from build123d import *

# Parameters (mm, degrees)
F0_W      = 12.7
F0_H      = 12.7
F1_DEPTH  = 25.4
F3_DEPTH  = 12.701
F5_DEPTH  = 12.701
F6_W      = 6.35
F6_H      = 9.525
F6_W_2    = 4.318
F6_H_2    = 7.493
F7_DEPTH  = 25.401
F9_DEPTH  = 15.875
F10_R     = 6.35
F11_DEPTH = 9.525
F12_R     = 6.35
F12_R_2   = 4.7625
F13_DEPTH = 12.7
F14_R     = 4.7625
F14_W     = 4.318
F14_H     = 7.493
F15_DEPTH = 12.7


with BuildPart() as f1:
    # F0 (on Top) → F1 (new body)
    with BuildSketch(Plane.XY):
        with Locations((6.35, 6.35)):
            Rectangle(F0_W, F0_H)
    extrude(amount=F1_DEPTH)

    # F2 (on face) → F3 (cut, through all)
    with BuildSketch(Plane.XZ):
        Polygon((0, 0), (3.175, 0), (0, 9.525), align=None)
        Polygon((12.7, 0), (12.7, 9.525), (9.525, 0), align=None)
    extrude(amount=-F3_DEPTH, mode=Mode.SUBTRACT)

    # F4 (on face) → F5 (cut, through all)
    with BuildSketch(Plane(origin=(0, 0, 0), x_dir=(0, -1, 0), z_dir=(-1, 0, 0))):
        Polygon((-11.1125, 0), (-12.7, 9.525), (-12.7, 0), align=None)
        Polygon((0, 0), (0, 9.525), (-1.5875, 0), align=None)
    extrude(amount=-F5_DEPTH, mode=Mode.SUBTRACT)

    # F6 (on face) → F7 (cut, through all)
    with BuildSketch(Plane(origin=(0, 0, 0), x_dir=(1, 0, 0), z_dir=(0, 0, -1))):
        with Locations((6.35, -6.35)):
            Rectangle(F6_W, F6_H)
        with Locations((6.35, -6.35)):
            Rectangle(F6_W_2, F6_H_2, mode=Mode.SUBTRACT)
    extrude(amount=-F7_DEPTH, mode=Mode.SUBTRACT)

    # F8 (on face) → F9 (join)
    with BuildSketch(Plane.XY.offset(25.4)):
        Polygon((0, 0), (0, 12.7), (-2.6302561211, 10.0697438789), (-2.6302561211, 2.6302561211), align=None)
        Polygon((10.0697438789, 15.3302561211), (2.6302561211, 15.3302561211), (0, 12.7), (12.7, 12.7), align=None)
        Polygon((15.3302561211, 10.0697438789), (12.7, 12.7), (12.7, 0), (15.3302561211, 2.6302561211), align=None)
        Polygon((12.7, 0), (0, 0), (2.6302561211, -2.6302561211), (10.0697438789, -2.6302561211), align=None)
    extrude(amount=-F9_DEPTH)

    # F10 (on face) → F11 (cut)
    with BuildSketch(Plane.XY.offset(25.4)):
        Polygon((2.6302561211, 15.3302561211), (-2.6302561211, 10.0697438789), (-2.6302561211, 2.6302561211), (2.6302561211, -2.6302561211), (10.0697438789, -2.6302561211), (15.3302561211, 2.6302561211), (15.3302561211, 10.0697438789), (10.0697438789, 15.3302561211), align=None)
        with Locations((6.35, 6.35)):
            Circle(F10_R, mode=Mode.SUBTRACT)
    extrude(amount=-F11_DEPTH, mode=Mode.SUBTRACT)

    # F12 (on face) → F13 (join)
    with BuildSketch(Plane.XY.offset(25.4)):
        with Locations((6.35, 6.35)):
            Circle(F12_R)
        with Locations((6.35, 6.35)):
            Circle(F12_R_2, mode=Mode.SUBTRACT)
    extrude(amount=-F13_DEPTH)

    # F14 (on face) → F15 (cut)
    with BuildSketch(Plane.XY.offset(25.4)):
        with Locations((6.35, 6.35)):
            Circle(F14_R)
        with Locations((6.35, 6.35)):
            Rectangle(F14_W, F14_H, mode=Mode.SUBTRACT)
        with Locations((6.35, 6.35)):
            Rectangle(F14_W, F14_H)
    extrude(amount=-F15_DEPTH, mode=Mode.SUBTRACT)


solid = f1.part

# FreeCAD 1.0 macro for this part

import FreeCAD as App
import Part
import Sketcher

V = App.Vector
Q = App.Units.Quantity


def add_polygon(sketch, points):
    """Adds a closed chain of lines whose ends are joined by coincident constraints."""
    first, n = sketch.GeometryCount, len(points)
    for a, b in zip(points, points[1:] + points[:1]):
        sketch.addGeometry(Part.LineSegment(App.Vector(*a, 0), App.Vector(*b, 0)), False)
    for i in range(n):
        sketch.addConstraint(Sketcher.Constraint("Coincident", first + i, 2, first + (i + 1) % n, 1))

doc = App.newDocument("Part")
body = doc.addObject("PartDesign::Body", "Body")
body.AllowCompound = True

# Sketch on XY plane
sketch1 = body.newObject("Sketcher::SketchObject", "Sketch")
sketch1.AttachmentSupport = (doc.getObject("XY_Plane"), [""])
sketch1.MapMode = "FlatFace"
add_polygon(sketch1, [(0, 13), (0, 0), (13, 0), (13, 13)])  # lines 0-3
sketch1.addConstraint([
    Sketcher.Constraint("Vertical", 0),
    Sketcher.Constraint("Horizontal", 1),
    Sketcher.Constraint("Vertical", 2),
    Sketcher.Constraint("Horizontal", 3),
    Sketcher.Constraint("Coincident", 0, 2, -1, 1),
    Sketcher.Constraint("Equal", 3, 0),
    Sketcher.Constraint("DistanceX", 1, 1, 1, 2, Q("0.5 in")),
])
pad1 = body.newObject("PartDesign::Pad", "Pad")
pad1.Profile = sketch1
pad1.Length = Q("1 in")

# Sketch on XZ plane
sketch2 = body.newObject("Sketcher::SketchObject", "Sketch001")
sketch2.AttachmentSupport = (doc.getObject("XZ_Plane"), [""])
sketch2.MapMode = "FlatFace"
add_polygon(sketch2, [(0, 0), (3.2, 0), (0, 9.5)])  # lines 0-2
add_polygon(sketch2, [(12.7, 0), (12.7, 9.5), (9.5, 0)])  # lines 3-5
sketch2.addConstraint([
    Sketcher.Constraint("Horizontal", 0),
    Sketcher.Constraint("Vertical", 2),
    Sketcher.Constraint("Vertical", 3),
    Sketcher.Constraint("Horizontal", 5),
    Sketcher.Constraint("Coincident", 2, 2, -1, 1),
    Sketcher.Constraint("PointOnObject", 4, 2, -1),
    Sketcher.Constraint("Horizontal", 1, 2, 3, 2),
    Sketcher.Constraint("Equal", 0, 5),
    Sketcher.Constraint("DistanceX", -1, 1, 3, 2, Q("0.5 in")),
    Sketcher.Constraint("DistanceX", 0, 1, 0, 2, Q("0.125 in")),
    Sketcher.Constraint("DistanceY", 2, 2, 2, 1, Q("0.375 in")),
])
pocket1 = body.newObject("PartDesign::Pocket", "Pocket")
pocket1.Profile = sketch2
pocket1.Type = "ThroughAll"

# Sketch on YZ plane
sketch3 = body.newObject("Sketcher::SketchObject", "Sketch002")
sketch3.AttachmentSupport = (doc.getObject("YZ_Plane"), [""])
sketch3.MapMode = "FlatFace"
add_polygon(sketch3, [(11.1, 0), (12.7, 9.5), (12.7, 0)])  # lines 0-2
add_polygon(sketch3, [(0, 0), (0, 9.5), (1.6, 0)])  # lines 3-5
sketch3.addConstraint([
    Sketcher.Constraint("Vertical", 1),
    Sketcher.Constraint("Horizontal", 2),
    Sketcher.Constraint("Vertical", 3),
    Sketcher.Constraint("Horizontal", 5),
    Sketcher.Constraint("Coincident", 5, 2, -1, 1),
    Sketcher.Constraint("PointOnObject", 1, 2, -1),
    Sketcher.Constraint("Horizontal", 0, 2, 3, 2),
    Sketcher.Constraint("Equal", 2, 5),
    Sketcher.Constraint("DistanceX", -1, 1, 0, 2, Q("0.5 in")),
    Sketcher.Constraint("DistanceX", 2, 2, 2, 1, Q("0.0625 in")),
    Sketcher.Constraint("DistanceY", 1, 2, 1, 1, Q("0.375 in")),
])
pocket2 = body.newObject("PartDesign::Pocket", "Pocket001")
pocket2.Profile = sketch3
pocket2.Type = "ThroughAll"
pocket2.Reversed = True

# Sketch on XY plane
sketch4 = body.newObject("Sketcher::SketchObject", "Sketch003")
sketch4.AttachmentSupport = (doc.getObject("XY_Plane"), [""])
sketch4.MapMode = "FlatFace"
add_polygon(sketch4, [(3.2, 1.6), (3.2, 11.1), (9.5, 11.1), (9.5, 1.6)])  # lines 0-3
add_polygon(sketch4, [(8.5, 10.1), (4.2, 10.1), (4.2, 2.6), (8.5, 2.6)])  # lines 4-7
sketch4.addConstraint([
    Sketcher.Constraint("Vertical", 0),
    Sketcher.Constraint("Horizontal", 1),
    Sketcher.Constraint("Vertical", 2),
    Sketcher.Constraint("Horizontal", 3),
    Sketcher.Constraint("Horizontal", 4),
    Sketcher.Constraint("Vertical", 5),
    Sketcher.Constraint("Horizontal", 6),
    Sketcher.Constraint("Vertical", 7),
    Sketcher.Constraint("DistanceX", 1, 1, 1, 2, Q("0.25 in")),
    Sketcher.Constraint("DistanceX", 4, 2, 4, 1, Q("0.17 in")),
    Sketcher.Constraint("DistanceY", 0, 1, 0, 2, Q("0.375 in")),
    Sketcher.Constraint("DistanceY", 5, 2, 5, 1, Q("0.295 in")),
    Sketcher.Constraint("DistanceX", 0, 2, 4, 2, Q("0.04 in")),
    Sketcher.Constraint("DistanceY", 4, 2, 0, 2, Q("0.04 in")),
    Sketcher.Constraint("DistanceX", -1, 1, 0, 2, Q("0.125 in")),
    Sketcher.Constraint("DistanceY", -1, 1, 0, 2, Q("0.4375 in")),
])
pocket3 = body.newObject("PartDesign::Pocket", "Pocket002")
pocket3.Profile = sketch4
pocket3.Type = "ThroughAll"
pocket3.Reversed = True

# Sketch on XY plane
sketch5 = body.newObject("Sketcher::SketchObject", "Sketch004")
sketch5.AttachmentSupport = (doc.getObject("XY_Plane"), [""])
sketch5.MapMode = "FlatFace"
sketch5.AttachmentOffset = App.Placement(V(0, 0, 1 * 25.4), App.Rotation())
add_polygon(sketch5, [(0, 0), (0, 12.7), (-2.6, 10.1), (-2.6, 2.6)])  # lines 0-3
add_polygon(sketch5, [(10.1, 15.3), (2.6, 15.3), (0, 12.7), (12.7, 12.7)])  # lines 4-7
add_polygon(sketch5, [(15.3, 10.1), (12.7, 12.7), (12.7, 0), (15.3, 2.6)])  # lines 8-11
add_polygon(sketch5, [(12.7, 0), (0, 0), (2.6, -2.6), (10.1, -2.6)])  # lines 12-15
sketch5.addConstraint([
    Sketcher.Constraint("Vertical", 0),
    Sketcher.Constraint("Vertical", 2),
    Sketcher.Constraint("Horizontal", 4),
    Sketcher.Constraint("Horizontal", 6),
    Sketcher.Constraint("Vertical", 9),
    Sketcher.Constraint("Vertical", 11),
    Sketcher.Constraint("Horizontal", 12),
    Sketcher.Constraint("Horizontal", 14),
    Sketcher.Constraint("Coincident", 3, 2, -1, 1),
    Sketcher.Constraint("Coincident", 12, 2, -1, 1),
    Sketcher.Constraint("Coincident", 5, 2, 0, 2),
    Sketcher.Constraint("Coincident", 8, 2, 6, 2),
    Sketcher.Constraint("Coincident", 15, 2, 9, 2),
    Sketcher.Constraint("Symmetric", 2, 2, 13, 2, -1, 1),
    Sketcher.Constraint("Perpendicular", 1, 3),
    Sketcher.Constraint("Perpendicular", 3, 5),
    Sketcher.Constraint("Perpendicular", 5, 7),
    Sketcher.Constraint("Parallel", 7, 8),
    Sketcher.Constraint("Perpendicular", 8, 10),
    Sketcher.Constraint("Perpendicular", 13, 15),
    Sketcher.Constraint("Horizontal", 2, 2, 10, 2),
    Sketcher.Constraint("Horizontal", 1, 2, 11, 2),
    Sketcher.Constraint("Vertical", 4, 2, 13, 2),
    Sketcher.Constraint("Equal", 12, 0),
    Sketcher.Constraint("DistanceX", 6, 1, 6, 2, Q("0.5 in")),
    Sketcher.Constraint("DistanceX", 4, 2, 4, 1, 7.439488),
])
pad2 = body.newObject("PartDesign::Pad", "Pad001")
pad2.Profile = sketch5
pad2.Length = Q("0.625 in")
pad2.Reversed = True

# Sketch on XY plane
sketch6 = body.newObject("Sketcher::SketchObject", "Sketch005")
sketch6.AttachmentSupport = (doc.getObject("XY_Plane"), [""])
sketch6.MapMode = "FlatFace"
sketch6.AttachmentOffset = App.Placement(V(0, 0, 1 * 25.4), App.Rotation())
add_polygon(sketch6, [(3, 15), (-3, 10), (-3, 3), (3, -3), (10, -3), (15, 3), (15, 10), (10, 15)])  # lines 0-7
sketch6.addGeometry(Part.Circle(V(6, 6, 0), V(0, 0, 1), 6), False)  # 8
sketch6.addConstraint([
    Sketcher.Constraint("Vertical", 1),
    Sketcher.Constraint("Horizontal", 3),
    Sketcher.Constraint("Vertical", 5),
    Sketcher.Constraint("Horizontal", 7),
    Sketcher.Constraint("Symmetric", 1, 2, 2, 2, -1, 1),
    Sketcher.Constraint("Perpendicular", 0, 2),
    Sketcher.Constraint("Perpendicular", 2, 4),
    Sketcher.Constraint("Perpendicular", 4, 6),
    Sketcher.Constraint("Horizontal", 1, 2, 4, 2),
    Sketcher.Constraint("Horizontal", 0, 2, 5, 2),
    Sketcher.Constraint("Vertical", 3, 2, 6, 2),
    Sketcher.Constraint("Vertical", 2, 2, 7, 2),
    Sketcher.Constraint("Equal", 7, 1),
    Sketcher.Constraint("Diameter", 8, Q("0.5 in")),
    Sketcher.Constraint("DistanceY", 2, 2, 0, 2, Q("0.5 in")),
    Sketcher.Constraint("DistanceX", -1, 1, 8, 3, Q("0.25 in")),
    Sketcher.Constraint("DistanceY", -1, 1, 8, 3, Q("0.25 in")),
    Sketcher.Constraint("DistanceX", 3, 1, 3, 2, 7.439488),
])
pocket4 = body.newObject("PartDesign::Pocket", "Pocket003")
pocket4.Profile = sketch6
pocket4.Length = Q("0.375 in")

# Sketch on XY plane
sketch7 = body.newObject("Sketcher::SketchObject", "Sketch006")
sketch7.AttachmentSupport = (doc.getObject("XY_Plane"), [""])
sketch7.MapMode = "FlatFace"
sketch7.AttachmentOffset = App.Placement(V(0, 0, 1 * 25.4), App.Rotation())
sketch7.addGeometry([
    Part.Circle(V(6.3, 6.3, 0), V(0, 0, 1), 6.3),
    Part.Circle(V(6.3, 6.3, 0), V(0, 0, 1), 4.8),
], False)
sketch7.addConstraint([
    Sketcher.Constraint("Coincident", 1, 3, 0, 3),
    Sketcher.Constraint("Diameter", 0, Q("0.5 in")),
    Sketcher.Constraint("Diameter", 1, Q("0.375 in")),
    Sketcher.Constraint("DistanceX", -1, 1, 0, 3, Q("0.25 in")),
    Sketcher.Constraint("DistanceY", -1, 1, 0, 3, Q("0.25 in")),
])
pad3 = body.newObject("PartDesign::Pad", "Pad002")
pad3.Profile = sketch7
pad3.Length = Q("0.5 in")
pad3.Reversed = True

# Sketch on XY plane
sketch8 = body.newObject("Sketcher::SketchObject", "Sketch007")
sketch8.AttachmentSupport = (doc.getObject("XY_Plane"), [""])
sketch8.MapMode = "FlatFace"
sketch8.AttachmentOffset = App.Placement(V(0, 0, 1 * 25.4), App.Rotation())
sketch8.addGeometry(Part.Circle(V(6.3, 6.3, 0), V(0, 0, 1), 4.8), False)
sketch8.addConstraint([
    Sketcher.Constraint("Diameter", 0, Q("0.375 in")),
    Sketcher.Constraint("DistanceX", -1, 1, 0, 3, Q("0.25 in")),
    Sketcher.Constraint("DistanceY", -1, 1, 0, 3, Q("0.25 in")),
])
pocket5 = body.newObject("PartDesign::Pocket", "Pocket004")
pocket5.Profile = sketch8
pocket5.Length = Q("0.5 in")

doc.recompute()
